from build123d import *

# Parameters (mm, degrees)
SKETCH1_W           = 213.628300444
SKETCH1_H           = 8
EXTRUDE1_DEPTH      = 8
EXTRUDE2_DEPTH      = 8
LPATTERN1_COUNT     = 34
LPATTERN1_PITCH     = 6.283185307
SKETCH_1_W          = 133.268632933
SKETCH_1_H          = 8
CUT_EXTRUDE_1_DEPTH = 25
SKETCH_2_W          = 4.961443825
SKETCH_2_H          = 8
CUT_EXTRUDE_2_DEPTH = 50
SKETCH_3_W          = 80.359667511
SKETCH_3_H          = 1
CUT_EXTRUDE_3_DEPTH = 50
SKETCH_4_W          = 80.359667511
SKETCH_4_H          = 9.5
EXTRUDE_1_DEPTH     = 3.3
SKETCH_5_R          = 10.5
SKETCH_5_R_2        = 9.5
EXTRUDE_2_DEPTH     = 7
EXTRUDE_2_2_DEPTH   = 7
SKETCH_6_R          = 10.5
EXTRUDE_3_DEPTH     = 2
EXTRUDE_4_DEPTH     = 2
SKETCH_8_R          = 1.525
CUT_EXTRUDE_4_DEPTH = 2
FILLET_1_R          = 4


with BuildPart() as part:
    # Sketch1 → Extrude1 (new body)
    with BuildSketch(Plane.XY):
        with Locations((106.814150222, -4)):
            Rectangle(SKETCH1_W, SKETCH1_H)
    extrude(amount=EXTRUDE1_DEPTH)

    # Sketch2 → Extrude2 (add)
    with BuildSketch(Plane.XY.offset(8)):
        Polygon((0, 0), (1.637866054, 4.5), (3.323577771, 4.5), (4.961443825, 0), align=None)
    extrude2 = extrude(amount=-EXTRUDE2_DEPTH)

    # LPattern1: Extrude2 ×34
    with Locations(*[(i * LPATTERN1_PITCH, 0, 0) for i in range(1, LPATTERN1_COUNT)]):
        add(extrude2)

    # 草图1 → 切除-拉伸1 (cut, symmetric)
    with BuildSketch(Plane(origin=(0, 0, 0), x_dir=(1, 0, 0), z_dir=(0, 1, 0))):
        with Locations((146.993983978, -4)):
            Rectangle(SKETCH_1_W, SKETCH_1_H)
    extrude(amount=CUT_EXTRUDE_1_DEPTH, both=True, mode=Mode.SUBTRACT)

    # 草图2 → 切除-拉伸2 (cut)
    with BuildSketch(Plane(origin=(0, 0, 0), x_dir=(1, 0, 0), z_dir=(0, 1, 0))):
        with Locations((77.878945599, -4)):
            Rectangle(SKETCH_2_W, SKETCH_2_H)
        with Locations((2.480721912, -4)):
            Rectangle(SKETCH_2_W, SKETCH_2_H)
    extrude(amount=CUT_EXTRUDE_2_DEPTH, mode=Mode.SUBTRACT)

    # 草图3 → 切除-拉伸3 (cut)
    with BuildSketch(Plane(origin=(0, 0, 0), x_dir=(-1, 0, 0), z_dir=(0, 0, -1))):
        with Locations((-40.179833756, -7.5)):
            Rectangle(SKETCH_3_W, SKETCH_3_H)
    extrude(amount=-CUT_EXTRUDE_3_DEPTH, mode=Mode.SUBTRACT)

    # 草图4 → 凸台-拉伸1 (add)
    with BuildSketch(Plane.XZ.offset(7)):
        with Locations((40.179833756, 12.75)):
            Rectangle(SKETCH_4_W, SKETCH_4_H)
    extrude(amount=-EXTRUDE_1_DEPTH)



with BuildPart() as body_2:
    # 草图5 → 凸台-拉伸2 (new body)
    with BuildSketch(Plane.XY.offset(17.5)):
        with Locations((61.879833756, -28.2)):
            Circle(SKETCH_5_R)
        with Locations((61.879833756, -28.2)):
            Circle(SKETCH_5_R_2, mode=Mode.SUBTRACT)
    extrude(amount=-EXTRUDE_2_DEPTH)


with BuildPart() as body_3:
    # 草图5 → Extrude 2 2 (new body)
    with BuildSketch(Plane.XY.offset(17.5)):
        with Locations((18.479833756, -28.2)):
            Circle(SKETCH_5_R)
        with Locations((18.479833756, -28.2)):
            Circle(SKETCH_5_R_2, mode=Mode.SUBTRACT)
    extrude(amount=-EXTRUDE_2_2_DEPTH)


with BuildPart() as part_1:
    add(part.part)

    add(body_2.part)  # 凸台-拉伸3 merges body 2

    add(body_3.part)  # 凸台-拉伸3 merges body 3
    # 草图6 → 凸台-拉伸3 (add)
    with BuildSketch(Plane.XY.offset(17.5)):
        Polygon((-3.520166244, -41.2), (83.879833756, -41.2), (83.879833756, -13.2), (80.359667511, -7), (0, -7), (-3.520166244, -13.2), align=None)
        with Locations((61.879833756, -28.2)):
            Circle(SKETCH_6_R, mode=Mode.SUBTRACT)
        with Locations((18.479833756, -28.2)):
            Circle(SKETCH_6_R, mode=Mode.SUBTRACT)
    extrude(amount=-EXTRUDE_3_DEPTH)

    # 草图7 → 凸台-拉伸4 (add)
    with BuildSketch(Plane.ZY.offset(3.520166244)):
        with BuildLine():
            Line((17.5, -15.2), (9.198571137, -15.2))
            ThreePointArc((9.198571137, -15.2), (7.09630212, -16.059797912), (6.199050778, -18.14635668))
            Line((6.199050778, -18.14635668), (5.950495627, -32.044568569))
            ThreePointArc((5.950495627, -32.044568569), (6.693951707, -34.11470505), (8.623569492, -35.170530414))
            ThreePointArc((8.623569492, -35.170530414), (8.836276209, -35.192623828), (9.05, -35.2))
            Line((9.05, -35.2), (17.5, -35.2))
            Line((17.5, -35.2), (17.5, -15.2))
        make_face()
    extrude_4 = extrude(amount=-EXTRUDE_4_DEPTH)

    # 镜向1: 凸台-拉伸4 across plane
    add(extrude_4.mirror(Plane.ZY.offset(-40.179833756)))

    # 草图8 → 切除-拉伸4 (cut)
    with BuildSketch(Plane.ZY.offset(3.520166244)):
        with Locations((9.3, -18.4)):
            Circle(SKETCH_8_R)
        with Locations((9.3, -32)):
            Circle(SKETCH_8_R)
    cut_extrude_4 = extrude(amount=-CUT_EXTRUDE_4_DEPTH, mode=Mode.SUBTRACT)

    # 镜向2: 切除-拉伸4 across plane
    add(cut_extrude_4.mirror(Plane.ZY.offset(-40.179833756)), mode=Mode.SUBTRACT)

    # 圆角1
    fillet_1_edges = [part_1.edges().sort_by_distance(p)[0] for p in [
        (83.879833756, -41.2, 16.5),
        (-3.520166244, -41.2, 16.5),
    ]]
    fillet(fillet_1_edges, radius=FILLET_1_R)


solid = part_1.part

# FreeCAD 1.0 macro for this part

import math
import FreeCAD as App
import Part
import Sketcher
Q = App.Units.Quantity


def edges_at(feature, points):
    """Names of the edges that pass closest to the given points."""
    edges = feature.Shape.Edges
    near = lambda p: min(range(len(edges)), key=lambda i: edges[i].distToShape(Part.Vertex(*p))[0])
    return sorted({f"Edge{near(p) + 1}" for p in points})


def add_polygon(sketch, points):
    """Adds a closed chain of lines whose ends are joined by coincident constraints."""
    first, n = sketch.GeometryCount, len(points)
    for a, b in zip(points, points[1:] + points[:1]):
        sketch.addGeometry(Part.LineSegment(App.Vector(*a, 0), App.Vector(*b, 0)), False)
    for i in range(n):
        sketch.addConstraint(Sketcher.Constraint("Coincident", first + i, 2, first + (i + 1) % n, 1))

doc = App.newDocument("Part")
params = doc.addObject("Spreadsheet::Sheet", "Params")
for row, (alias, value) in enumerate([
    ("sketch1_height", "8 mm"),
    ("pad1_length", "8 mm"),
    ("pad2_length", "8 mm"),
    ("linearpattern_pitch", "6.283185 mm"),
    ("sketch3_height", "8 mm"),
    ("pocket1_length", "50 mm"),
    ("sketch4_height", "8 mm"),
    ("pocket2_length", "50 mm"),
    ("sketch5_height", "1 mm"),
    ("pocket3_length", "50 mm"),
    ("sketch6_height", "9.5 mm"),
    ("pad3_length", "3.3 mm"),
    ("sketch7_diameter", "21 mm"),
    ("sketch7_diameter2", "19 mm"),
    ("pad4_length", "7 mm"),
    ("sketch8_diameter", "21 mm"),
    ("sketch8_diameter2", "19 mm"),
    ("pad5_length", "7 mm"),
    ("sketch9_diameter", "21 mm"),
    ("sketch9_height", "28 mm"),
    ("sketch9_width", "87.4 mm"),
    ("pad6_length", "2 mm"),
    ("sketch10_radius", "3 mm"),
    ("sketch10_radius2", "3.1 mm"),
    ("sketch10_width", "20 mm"),
    ("sketch10_height", "8.45 mm"),
    ("pad7_length", "2 mm"),
    ("sketch11_diameter", "3.05 mm"),
    ("pocket4_length", "2 mm"),
    ("fillet_radius", "4 mm"),
], start=1):
    params.set(f"A{row}", alias)
    params.set(f"B{row}", "=" + value)
    params.setAlias(f"B{row}", alias)

body = doc.addObject("PartDesign::Body", "Body")

sketch1 = body.newObject("Sketcher::SketchObject", "Sketch")
sketch1.AttachmentSupport = (doc.getObject("XY_Plane"), [""])
sketch1.MapMode = "FlatFace"
add_polygon(sketch1, [(0, 0), (0, -8), (214, -8), (214, 0)])
sketch1.addConstraint(Sketcher.Constraint("Vertical", 0))
sketch1.addConstraint(Sketcher.Constraint("Horizontal", 1))
sketch1.addConstraint(Sketcher.Constraint("Vertical", 2))
sketch1.addConstraint(Sketcher.Constraint("Horizontal", 3))
sketch1.addConstraint(Sketcher.Constraint("Coincident", 3, 2, -1, 1))
sketch1.addConstraint(Sketcher.Constraint("DistanceY", 0, 2, 0, 1, Q("8 mm")))
sketch1.addConstraint(Sketcher.Constraint("DistanceX", 1, 1, 1, 2, Q("213.6283 mm")))
sketch1.setExpression("Constraints[9]", "Params.sketch1_height")
pad1 = body.newObject("PartDesign::Pad", "Pad")
pad1.Profile = sketch1
pad1.setExpression("Length", "Params.pad1_length")

sketch2 = body.newObject("Sketcher::SketchObject", "Sketch001")
sketch2.AttachmentSupport = (doc.getObject("XY_Plane"), [""])
sketch2.MapMode = "FlatFace"
sketch2.AttachmentOffset = App.Placement(App.Vector(0, 0, 8), App.Rotation())
add_polygon(sketch2, [(1.6, 4.5), (0, 0), (5, 0), (3.3, 4.5)])
sketch2.addConstraint(Sketcher.Constraint("Horizontal", 1))
sketch2.addConstraint(Sketcher.Constraint("Horizontal", 3))
sketch2.addConstraint(Sketcher.Constraint("Coincident", 0, 2, -1, 1))
sketch2.addConstraint(Sketcher.Constraint("Equal", 0, 2))
sketch2.addConstraint(Sketcher.Constraint("Angle", 0, Q("-110 deg")))
sketch2.addConstraint(Sketcher.Constraint("DistanceY", -1, 1, 2, 2, Q("4.5 mm")))
sketch2.addConstraint(Sketcher.Constraint("DistanceX", 3, 2, 3, 1, Q("1.685712 mm")))
pad2 = body.newObject("PartDesign::Pad", "Pad001")
pad2.Profile = sketch2
pad2.setExpression("Length", "Params.pad2_length")
pad2.Reversed = True
doc.recompute()

linearpattern = body.newObject("PartDesign::LinearPattern", "LinearPattern")
linearpattern.Originals = [pad2]
linearpattern.Direction = (doc.getObject("X_Axis"), [""])
linearpattern.Mode = "offset"
linearpattern.setExpression("Offset", "Params.linearpattern_pitch")
linearpattern.Occurrences = 34
body.Tip = linearpattern

sketch3 = body.newObject("Sketcher::SketchObject", "Sketch002")
sketch3.AttachmentSupport = (doc.getObject("XZ_Plane"), [""])
sketch3.MapMode = "FlatFace"
add_polygon(sketch3, [(80, 0), (80, 8), (214, 8), (214, 0)])
sketch3.addConstraint(Sketcher.Constraint("Vertical", 0))
sketch3.addConstraint(Sketcher.Constraint("Horizontal", 1))
sketch3.addConstraint(Sketcher.Constraint("Vertical", 2))
sketch3.addConstraint(Sketcher.Constraint("Horizontal", 3))
sketch3.addConstraint(Sketcher.Constraint("PointOnObject", 2, 2, -1))
sketch3.addConstraint(Sketcher.Constraint("DistanceY", 0, 1, 0, 2, Q("8 mm")))
sketch3.addConstraint(Sketcher.Constraint("DistanceX", -1, 1, 1, 2, Q("213.6283 mm")))
sketch3.addConstraint(Sketcher.Constraint("DistanceX", 1, 1, 1, 2, Q("133.268633 mm")))
sketch3.setExpression("Constraints[9]", "Params.sketch3_height")
pocket1 = body.newObject("PartDesign::Pocket", "Pocket")
pocket1.Profile = sketch3
pocket1.setExpression("Length", "Params.pocket1_length")
pocket1.Midplane = True

sketch4 = body.newObject("Sketcher::SketchObject", "Sketch003")
sketch4.AttachmentSupport = (doc.getObject("XZ_Plane"), [""])
sketch4.MapMode = "FlatFace"
add_polygon(sketch4, [(75.4, 0), (75.4, 8), (80.4, 8), (80.4, 0)])
add_polygon(sketch4, [(0, 0), (0, 8), (5, 8), (5, 0)])
sketch4.addConstraint(Sketcher.Constraint("Vertical", 0))
sketch4.addConstraint(Sketcher.Constraint("Horizontal", 1))
sketch4.addConstraint(Sketcher.Constraint("Vertical", 2))
sketch4.addConstraint(Sketcher.Constraint("Horizontal", 3))
sketch4.addConstraint(Sketcher.Constraint("Vertical", 4))
sketch4.addConstraint(Sketcher.Constraint("Horizontal", 5))
sketch4.addConstraint(Sketcher.Constraint("Vertical", 6))
sketch4.addConstraint(Sketcher.Constraint("Horizontal", 7))
sketch4.addConstraint(Sketcher.Constraint("Coincident", 7, 2, -1, 1))
sketch4.addConstraint(Sketcher.Constraint("PointOnObject", 2, 2, -1))
sketch4.addConstraint(Sketcher.Constraint("Horizontal", 1, 2, 4, 2))
sketch4.addConstraint(Sketcher.Constraint("Equal", 3, 5))
sketch4.addConstraint(Sketcher.Constraint("DistanceY", 0, 1, 0, 2, Q("8 mm")))
sketch4.addConstraint(Sketcher.Constraint("DistanceX", 1, 1, 1, 2, Q("4.961444 mm")))
sketch4.addConstraint(Sketcher.Constraint("DistanceX", 5, 2, 0, 2, Q("70.43678 mm")))
sketch4.setExpression("Constraints[20]", "Params.sketch4_height")
pocket2 = body.newObject("PartDesign::Pocket", "Pocket001")
pocket2.Profile = sketch4
pocket2.setExpression("Length", "Params.pocket2_length")

sketch5 = body.newObject("Sketcher::SketchObject", "Sketch004")
sketch5.AttachmentSupport = (doc.getObject("XY_Plane"), [""])
sketch5.MapMode = "FlatFace"
add_polygon(sketch5, [(80.4, -7), (80.4, -8), (0, -8), (0, -7)])
sketch5.addConstraint(Sketcher.Constraint("Vertical", 0))
sketch5.addConstraint(Sketcher.Constraint("Horizontal", 1))
sketch5.addConstraint(Sketcher.Constraint("Vertical", 2))
sketch5.addConstraint(Sketcher.Constraint("Horizontal", 3))
sketch5.addConstraint(Sketcher.Constraint("PointOnObject", 1, 2, -2))
sketch5.addConstraint(Sketcher.Constraint("DistanceY", 0, 2, 0, 1, Q("1 mm")))
sketch5.addConstraint(Sketcher.Constraint("DistanceY", 0, 2, -1, 1, Q("8 mm")))
sketch5.addConstraint(Sketcher.Constraint("DistanceX", 1, 2, 1, 1, Q("80.359668 mm")))
sketch5.setExpression("Constraints[9]", "Params.sketch5_height")
pocket3 = body.newObject("PartDesign::Pocket", "Pocket002")
pocket3.Profile = sketch5
pocket3.setExpression("Length", "Params.pocket3_length")
pocket3.Reversed = True

sketch6 = body.newObject("Sketcher::SketchObject", "Sketch005")
sketch6.AttachmentSupport = (doc.getObject("XZ_Plane"), [""])
sketch6.MapMode = "FlatFace"
sketch6.AttachmentOffset = App.Placement(App.Vector(0, 0, 7), App.Rotation())
add_polygon(sketch6, [(0, 18), (0, 8), (80, 8), (80, 18)])
sketch6.addConstraint(Sketcher.Constraint("Vertical", 0))
sketch6.addConstraint(Sketcher.Constraint("Horizontal", 1))
sketch6.addConstraint(Sketcher.Constraint("Vertical", 2))
sketch6.addConstraint(Sketcher.Constraint("Horizontal", 3))
sketch6.addConstraint(Sketcher.Constraint("PointOnObject", 0, 2, -2))
sketch6.addConstraint(Sketcher.Constraint("DistanceY", 0, 2, 0, 1, Q("9.5 mm")))
sketch6.addConstraint(Sketcher.Constraint("DistanceY", -1, 1, 0, 2, Q("8 mm")))
sketch6.addConstraint(Sketcher.Constraint("DistanceX", 1, 1, 1, 2, Q("80.359668 mm")))
sketch6.setExpression("Constraints[9]", "Params.sketch6_height")
pad3 = body.newObject("PartDesign::Pad", "Pad002")
pad3.Profile = sketch6
pad3.setExpression("Length", "Params.pad3_length")
pad3.Reversed = True
body2 = doc.addObject("PartDesign::Body", "Body001")

sketch7 = body2.newObject("Sketcher::SketchObject", "Sketch006")
sketch7.AttachmentSupport = (doc.getObject("XY_Plane001"), [""])
sketch7.MapMode = "FlatFace"
sketch7.AttachmentOffset = App.Placement(App.Vector(0, 0, 17.5), App.Rotation())
sketch7.addGeometry(Part.Circle(App.Vector(62, -28, 0), App.Vector(0, 0, 1), 10), False)
sketch7.addGeometry(Part.Circle(App.Vector(62, -28, 0), App.Vector(0, 0, 1), 10), False)
sketch7.addConstraint(Sketcher.Constraint("Coincident", 1, 3, 0, 3))
sketch7.addConstraint(Sketcher.Constraint("Diameter", 0, Q("21 mm")))
sketch7.addConstraint(Sketcher.Constraint("Diameter", 1, Q("19 mm")))
sketch7.addConstraint(Sketcher.Constraint("DistanceY", 0, 3, -1, 1, Q("28.2 mm")))
sketch7.addConstraint(Sketcher.Constraint("DistanceX", -1, 1, 0, 3, Q("61.879834 mm")))
sketch7.setExpression("Constraints[1]", "Params.sketch7_diameter")
sketch7.setExpression("Constraints[2]", "Params.sketch7_diameter2")
pad4 = body2.newObject("PartDesign::Pad", "Pad003")
pad4.Profile = sketch7
pad4.setExpression("Length", "Params.pad4_length")
pad4.Reversed = True
body3 = doc.addObject("PartDesign::Body", "Body002")

sketch8 = body3.newObject("Sketcher::SketchObject", "Sketch007")
sketch8.AttachmentSupport = (doc.getObject("XY_Plane002"), [""])
sketch8.MapMode = "FlatFace"
sketch8.AttachmentOffset = App.Placement(App.Vector(0, 0, 17.5), App.Rotation())
sketch8.addGeometry(Part.Circle(App.Vector(18, -28, 0), App.Vector(0, 0, 1), 10), False)
sketch8.addGeometry(Part.Circle(App.Vector(18, -28, 0), App.Vector(0, 0, 1), 10), False)
sketch8.addConstraint(Sketcher.Constraint("Coincident", 1, 3, 0, 3))
sketch8.addConstraint(Sketcher.Constraint("Diameter", 0, Q("21 mm")))
sketch8.addConstraint(Sketcher.Constraint("Diameter", 1, Q("19 mm")))
sketch8.addConstraint(Sketcher.Constraint("DistanceY", 0, 3, -1, 1, Q("28.2 mm")))
sketch8.addConstraint(Sketcher.Constraint("DistanceX", -1, 1, 0, 3, Q("18.479834 mm")))
sketch8.setExpression("Constraints[1]", "Params.sketch8_diameter")
sketch8.setExpression("Constraints[2]", "Params.sketch8_diameter2")
pad5 = body3.newObject("PartDesign::Pad", "Pad004")
pad5.Profile = sketch8
pad5.setExpression("Length", "Params.pad5_length")
pad5.Reversed = True
body.AllowCompound = True
doc.recompute()

boolean = body.newObject("PartDesign::Boolean", "Boolean")
boolean.Type = "Fuse"
boolean.addObjects([body2])
doc.recompute()

boolean2 = body.newObject("PartDesign::Boolean", "Boolean001")
boolean2.Type = "Fuse"
boolean2.addObjects([body3])

sketch9 = body.newObject("Sketcher::SketchObject", "Sketch008")
sketch9.AttachmentSupport = (doc.getObject("XY_Plane"), [""])
sketch9.MapMode = "FlatFace"
sketch9.AttachmentOffset = App.Placement(App.Vector(0, 0, 17.5), App.Rotation())
add_polygon(sketch9, [(-4, -41), (84, -41), (84, -13), (80, -7), (0, -7), (-4, -13)])
sketch9.addGeometry(Part.Circle(App.Vector(18, -28, 0), App.Vector(0, 0, 1), 10), False)
sketch9.addGeometry(Part.Circle(App.Vector(62, -28, 0), App.Vector(0, 0, 1), 10), False)
sketch9.addConstraint(Sketcher.Constraint("Horizontal", 0))
sketch9.addConstraint(Sketcher.Constraint("Vertical", 1))
sketch9.addConstraint(Sketcher.Constraint("Horizontal", 3))
sketch9.addConstraint(Sketcher.Constraint("Vertical", 5))
sketch9.addConstraint(Sketcher.Constraint("Equal", 6, 7))
sketch9.addConstraint(Sketcher.Constraint("PointOnObject", 3, 2, -2))
sketch9.addConstraint(Sketcher.Constraint("Horizontal", 6, 3, 7, 3))
sketch9.addConstraint(Sketcher.Constraint("Horizontal", 1, 2, 4, 2))
sketch9.addConstraint(Sketcher.Constraint("Equal", 2, 4))
sketch9.addConstraint(Sketcher.Constraint("Diameter", 6, Q("21 mm")))
sketch9.addConstraint(Sketcher.Constraint("DistanceY", 1, 1, 1, 2, Q("28 mm")))
sketch9.addConstraint(Sketcher.Constraint("DistanceX", 0, 1, 0, 2, Q("87.4 mm")))
sketch9.addConstraint(Sketcher.Constraint("DistanceY", 2, 2, -1, 1, Q("7 mm")))
sketch9.addConstraint(Sketcher.Constraint("DistanceX", 7, 3, 0, 2, Q("22 mm")))
sketch9.addConstraint(Sketcher.Constraint("DistanceY", 0, 2, 7, 3, Q("13 mm")))
sketch9.addConstraint(Sketcher.Constraint("DistanceX", 4, 2, 6, 3, Q("22 mm")))
sketch9.addConstraint(Sketcher.Constraint("DistanceY", 6, 3, -1, 1, Q("28.2 mm")))
sketch9.addConstraint(Sketcher.Constraint("DistanceX", 3, 2, 3, 1, Q("80.359668 mm")))
sketch9.setExpression("Constraints[15]", "Params.sketch9_diameter")
sketch9.setExpression("Constraints[16]", "Params.sketch9_height")
sketch9.setExpression("Constraints[17]", "Params.sketch9_width")
pad6 = body.newObject("PartDesign::Pad", "Pad005")
pad6.Profile = sketch9
pad6.setExpression("Length", "Params.pad6_length")
pad6.Reversed = True

sketch10 = body.newObject("Sketcher::SketchObject", "Sketch009")
sketch10.AttachmentSupport = (doc.getObject("YZ_Plane"), [""])
sketch10.MapMode = "FlatFace"
sketch10.AttachmentOffset = App.Placement(App.Vector(0, 0, -3.520166), App.Rotation())
sketch10.addGeometry(Part.LineSegment(App.Vector(-15.2, 17.5, 0), App.Vector(-15.2, 9.2, 0)), False)
sketch10.addGeometry(Part.ArcOfCircle(Part.Circle(App.Vector(-18.2, 9.2, 0), App.Vector(0, 0, 1), 3), math.radians(-89), math.radians(0)), False)
sketch10.addGeometry(Part.LineSegment(App.Vector(-18.15, 6.2, 0), App.Vector(-32.04, 5.95, 0)), False)
sketch10.addGeometry(Part.ArcOfCircle(Part.Circle(App.Vector(-32.1, 9.05, 0), App.Vector(0, 0, 1), 3.1), math.radians(-172), math.radians(-89)), False)
sketch10.addGeometry(Part.ArcOfCircle(Part.Circle(App.Vector(-32.1, 9.05, 0), App.Vector(0, 0, 1), 3.1), math.radians(180), math.radians(187.91)), False)
sketch10.addGeometry(Part.LineSegment(App.Vector(-35.2, 9.05, 0), App.Vector(-35.2, 17.5, 0)), False)
sketch10.addGeometry(Part.LineSegment(App.Vector(-35.2, 17.5, 0), App.Vector(-15.2, 17.5, 0)), False)
sketch10.addConstraint(Sketcher.Constraint("Tangent", 0, 2, 1, 2))
sketch10.addConstraint(Sketcher.Constraint("Tangent", 1, 1, 2, 1))
sketch10.addConstraint(Sketcher.Constraint("Tangent", 2, 2, 3, 2))
sketch10.addConstraint(Sketcher.Constraint("Tangent", 3, 1, 4, 2))
sketch10.addConstraint(Sketcher.Constraint("Tangent", 4, 1, 5, 1))
sketch10.addConstraint(Sketcher.Constraint("Coincident", 5, 2, 6, 1))
sketch10.addConstraint(Sketcher.Constraint("Coincident", 6, 2, 0, 1))
sketch10.addConstraint(Sketcher.Constraint("Vertical", 0))
sketch10.addConstraint(Sketcher.Constraint("Vertical", 5))
sketch10.addConstraint(Sketcher.Constraint("Horizontal", 6))
sketch10.addConstraint(Sketcher.Constraint("Equal", 3, 4))
sketch10.addConstraint(Sketcher.Constraint("Radius", 1, Q("3 mm")))
sketch10.addConstraint(Sketcher.Constraint("Radius", 3, Q("3.1 mm")))
sketch10.addConstraint(Sketcher.Constraint("DistanceX", 6, 1, 6, 2, Q("20 mm")))
sketch10.addConstraint(Sketcher.Constraint("DistanceY", 5, 1, 5, 2, Q("8.45 mm")))
sketch10.addConstraint(Sketcher.Constraint("DistanceX", 1, 3, -1, 1, Q("18.2 mm")))
sketch10.addConstraint(Sketcher.Constraint("DistanceY", -1, 1, 5, 2, Q("17.5 mm")))
sketch10.addConstraint(Sketcher.Constraint("DistanceY", 3, 1, 1, 3, Q("0.575002 mm")))
sketch10.addConstraint(Sketcher.Constraint("DistanceY", 0, 2, 0, 1, Q("8.301429 mm")))
sketch10.setExpression("Constraints[11]", "Params.sketch10_radius")
sketch10.setExpression("Constraints[12]", "Params.sketch10_radius2")
sketch10.setExpression("Constraints[13]", "Params.sketch10_width")
sketch10.setExpression("Constraints[14]", "Params.sketch10_height")
pad7 = body.newObject("PartDesign::Pad", "Pad006")
pad7.Profile = sketch10
pad7.setExpression("Length", "Params.pad7_length")
doc.recompute()

datumplane = body.newObject("PartDesign::Plane", "DatumPlane")
datumplane.AttachmentSupport = (doc.getObject("YZ_Plane"), [""])
datumplane.MapMode = "FlatFace"
datumplane.AttachmentOffset = App.Placement(App.Vector(0, 0, 40.179834), App.Rotation())
mirrored = body.newObject("PartDesign::Mirrored", "Mirrored")
mirrored.Originals = [pad7]
mirrored.MirrorPlane = (datumplane, [""])
body.Tip = mirrored

sketch11 = body.newObject("Sketcher::SketchObject", "Sketch010")
sketch11.AttachmentSupport = (doc.getObject("YZ_Plane"), [""])
sketch11.MapMode = "FlatFace"
sketch11.AttachmentOffset = App.Placement(App.Vector(0, 0, -3.520166), App.Rotation())
sketch11.addGeometry(Part.Circle(App.Vector(-18.4, 9.3, 0), App.Vector(0, 0, 1), 1.5), False)
sketch11.addGeometry(Part.Circle(App.Vector(-32, 9.3, 0), App.Vector(0, 0, 1), 1.5), False)
sketch11.addConstraint(Sketcher.Constraint("Equal", 0, 1))
sketch11.addConstraint(Sketcher.Constraint("Horizontal", 0, 3, 1, 3))
sketch11.addConstraint(Sketcher.Constraint("Diameter", 0, Q("3.05 mm")))
sketch11.addConstraint(Sketcher.Constraint("DistanceX", 1, 3, -1, 1, Q("32 mm")))
sketch11.addConstraint(Sketcher.Constraint("DistanceX", 0, 3, -1, 1, Q("18.4 mm")))
sketch11.addConstraint(Sketcher.Constraint("DistanceY", -1, 1, 0, 3, Q("9.3 mm")))
sketch11.setExpression("Constraints[2]", "Params.sketch11_diameter")
pocket4 = body.newObject("PartDesign::Pocket", "Pocket003")
pocket4.Profile = sketch11
pocket4.setExpression("Length", "Params.pocket4_length")
pocket4.Reversed = True
doc.recompute()

datumplane2 = body.newObject("PartDesign::Plane", "DatumPlane001")
datumplane2.AttachmentSupport = (doc.getObject("YZ_Plane"), [""])
datumplane2.MapMode = "FlatFace"
datumplane2.AttachmentOffset = App.Placement(App.Vector(0, 0, 40.179834), App.Rotation())
mirrored2 = body.newObject("PartDesign::Mirrored", "Mirrored001")
mirrored2.Originals = [pocket4]
mirrored2.MirrorPlane = (datumplane2, [""])
body.Tip = mirrored2
doc.recompute()

fillet = body.newObject("PartDesign::Fillet", "Fillet")
fillet.Base = (mirrored2, edges_at(mirrored2, [(83.88, -41.2, 16.5), (-3.52, -41.2, 16.5)]))
fillet.setExpression("Radius", "Params.fillet_radius")

doc.recompute()
